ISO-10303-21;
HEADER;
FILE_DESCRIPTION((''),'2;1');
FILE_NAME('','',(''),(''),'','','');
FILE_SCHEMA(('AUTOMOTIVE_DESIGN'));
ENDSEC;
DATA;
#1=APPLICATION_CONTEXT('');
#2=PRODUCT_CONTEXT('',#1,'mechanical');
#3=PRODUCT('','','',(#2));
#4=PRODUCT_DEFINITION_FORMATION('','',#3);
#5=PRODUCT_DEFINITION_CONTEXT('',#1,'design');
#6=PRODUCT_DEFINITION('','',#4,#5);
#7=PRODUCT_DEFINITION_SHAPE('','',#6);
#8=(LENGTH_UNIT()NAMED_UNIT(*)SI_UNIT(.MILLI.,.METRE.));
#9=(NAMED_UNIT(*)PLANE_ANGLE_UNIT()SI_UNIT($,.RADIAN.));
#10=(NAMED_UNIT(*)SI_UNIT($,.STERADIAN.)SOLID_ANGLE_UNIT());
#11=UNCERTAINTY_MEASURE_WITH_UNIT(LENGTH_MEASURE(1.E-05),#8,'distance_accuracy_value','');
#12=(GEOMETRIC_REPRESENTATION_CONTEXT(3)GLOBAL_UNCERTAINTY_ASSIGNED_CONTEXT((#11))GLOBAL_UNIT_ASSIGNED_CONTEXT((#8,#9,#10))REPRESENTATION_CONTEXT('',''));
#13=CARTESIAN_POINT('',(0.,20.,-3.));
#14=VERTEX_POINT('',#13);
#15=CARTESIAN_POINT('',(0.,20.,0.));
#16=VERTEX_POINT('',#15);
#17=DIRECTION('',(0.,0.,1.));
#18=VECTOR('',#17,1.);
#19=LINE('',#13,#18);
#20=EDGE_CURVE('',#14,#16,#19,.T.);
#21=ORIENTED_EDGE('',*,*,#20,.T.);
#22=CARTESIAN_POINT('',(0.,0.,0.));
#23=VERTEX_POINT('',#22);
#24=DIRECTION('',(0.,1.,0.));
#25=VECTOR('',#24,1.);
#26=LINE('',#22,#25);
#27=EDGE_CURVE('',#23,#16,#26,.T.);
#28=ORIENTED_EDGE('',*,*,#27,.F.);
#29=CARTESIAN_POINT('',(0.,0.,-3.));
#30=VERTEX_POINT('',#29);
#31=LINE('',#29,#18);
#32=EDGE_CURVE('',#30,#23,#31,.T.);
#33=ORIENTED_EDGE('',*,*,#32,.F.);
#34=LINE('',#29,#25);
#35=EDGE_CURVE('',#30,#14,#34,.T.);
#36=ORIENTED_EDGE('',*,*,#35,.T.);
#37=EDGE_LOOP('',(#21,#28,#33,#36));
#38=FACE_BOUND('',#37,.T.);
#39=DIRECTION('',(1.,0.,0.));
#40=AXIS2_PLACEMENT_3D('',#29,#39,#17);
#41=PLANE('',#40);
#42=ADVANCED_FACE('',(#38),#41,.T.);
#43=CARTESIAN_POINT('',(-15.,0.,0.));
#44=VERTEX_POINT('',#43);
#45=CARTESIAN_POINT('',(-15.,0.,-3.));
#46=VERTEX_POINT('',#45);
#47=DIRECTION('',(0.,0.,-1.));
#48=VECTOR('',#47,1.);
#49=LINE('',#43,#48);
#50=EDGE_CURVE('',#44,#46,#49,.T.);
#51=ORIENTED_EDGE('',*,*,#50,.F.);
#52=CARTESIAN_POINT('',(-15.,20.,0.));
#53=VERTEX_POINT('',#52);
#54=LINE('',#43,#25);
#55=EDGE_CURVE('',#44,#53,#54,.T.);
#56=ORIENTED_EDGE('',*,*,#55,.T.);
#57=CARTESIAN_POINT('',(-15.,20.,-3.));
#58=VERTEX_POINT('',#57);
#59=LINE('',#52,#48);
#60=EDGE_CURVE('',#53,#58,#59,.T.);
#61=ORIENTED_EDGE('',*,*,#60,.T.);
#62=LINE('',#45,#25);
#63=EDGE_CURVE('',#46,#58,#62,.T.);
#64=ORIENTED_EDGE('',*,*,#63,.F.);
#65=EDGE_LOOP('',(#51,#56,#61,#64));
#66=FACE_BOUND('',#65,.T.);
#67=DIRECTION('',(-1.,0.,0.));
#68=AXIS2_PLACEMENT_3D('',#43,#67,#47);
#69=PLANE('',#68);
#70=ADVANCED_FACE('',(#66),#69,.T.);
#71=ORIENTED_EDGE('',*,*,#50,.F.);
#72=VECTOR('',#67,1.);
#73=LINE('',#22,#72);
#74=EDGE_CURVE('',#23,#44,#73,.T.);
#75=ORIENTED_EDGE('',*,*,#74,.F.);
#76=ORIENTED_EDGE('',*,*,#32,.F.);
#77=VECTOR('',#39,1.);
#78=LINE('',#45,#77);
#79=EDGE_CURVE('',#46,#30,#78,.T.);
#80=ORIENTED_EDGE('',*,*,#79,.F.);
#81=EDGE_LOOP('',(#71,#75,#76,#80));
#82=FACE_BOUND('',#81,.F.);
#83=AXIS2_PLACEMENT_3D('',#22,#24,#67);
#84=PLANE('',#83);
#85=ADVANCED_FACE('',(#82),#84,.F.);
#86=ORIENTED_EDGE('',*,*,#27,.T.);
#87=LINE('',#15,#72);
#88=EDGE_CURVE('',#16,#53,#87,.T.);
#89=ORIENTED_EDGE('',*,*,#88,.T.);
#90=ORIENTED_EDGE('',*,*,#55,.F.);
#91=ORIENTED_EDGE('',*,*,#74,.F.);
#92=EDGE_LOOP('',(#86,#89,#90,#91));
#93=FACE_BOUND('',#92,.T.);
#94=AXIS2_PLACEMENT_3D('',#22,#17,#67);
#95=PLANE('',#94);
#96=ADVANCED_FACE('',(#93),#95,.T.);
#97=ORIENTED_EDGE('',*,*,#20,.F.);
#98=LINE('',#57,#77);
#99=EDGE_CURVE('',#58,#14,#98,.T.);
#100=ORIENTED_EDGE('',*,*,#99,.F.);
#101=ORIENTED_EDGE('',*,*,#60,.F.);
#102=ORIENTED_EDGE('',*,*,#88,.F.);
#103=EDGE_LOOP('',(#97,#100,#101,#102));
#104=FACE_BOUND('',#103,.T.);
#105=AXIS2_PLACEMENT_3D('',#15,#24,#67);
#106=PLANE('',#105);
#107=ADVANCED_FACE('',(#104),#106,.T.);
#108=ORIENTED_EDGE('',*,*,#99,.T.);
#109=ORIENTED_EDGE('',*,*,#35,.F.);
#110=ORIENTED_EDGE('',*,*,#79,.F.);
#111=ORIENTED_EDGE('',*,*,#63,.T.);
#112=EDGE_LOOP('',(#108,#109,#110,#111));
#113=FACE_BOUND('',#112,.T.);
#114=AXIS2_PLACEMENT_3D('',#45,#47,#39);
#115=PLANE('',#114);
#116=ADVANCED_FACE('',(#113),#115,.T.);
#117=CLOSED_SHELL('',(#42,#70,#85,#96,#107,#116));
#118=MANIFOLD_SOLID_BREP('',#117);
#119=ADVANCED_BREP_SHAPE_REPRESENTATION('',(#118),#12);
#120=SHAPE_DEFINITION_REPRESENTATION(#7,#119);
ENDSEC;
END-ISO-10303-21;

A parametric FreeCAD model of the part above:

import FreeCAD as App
import Part
import Sketcher
from FreeCAD import Vector
Q = App.Units.Quantity

doc = App.newDocument("Part")
body = doc.addObject("PartDesign::Body", "Body")

# Sketch on XZ plane
sketch1 = body.newObject("Sketcher::SketchObject", "Sketch")
sketch1.AttachmentSupport = (doc.getObject("XZ_Plane"), [""])
sketch1.MapMode = "FlatFace"
sketch1.addGeometry(Part.LineSegment(Vector(-15, 0, 0), Vector(0, 0, 0)), False)
sketch1.addGeometry(Part.LineSegment(Vector(0, 0, 0), Vector(0, -3, 0)), False)
sketch1.addGeometry(Part.LineSegment(Vector(0, -3, 0), Vector(-15, -3, 0)), False)
sketch1.addGeometry(Part.LineSegment(Vector(-15, -3, 0), Vector(-15, 0, 0)), False)
sketch1.addConstraint(Sketcher.Constraint("Coincident", 0, 2, 1, 1))
sketch1.addConstraint(Sketcher.Constraint("Coincident", 1, 2, 2, 1))
sketch1.addConstraint(Sketcher.Constraint("Coincident", 2, 2, 3, 1))
sketch1.addConstraint(Sketcher.Constraint("Coincident", 3, 2, 0, 1))
sketch1.addConstraint(Sketcher.Constraint("Horizontal", 0))
sketch1.addConstraint(Sketcher.Constraint("Vertical", 1))
sketch1.addConstraint(Sketcher.Constraint("Horizontal", 2))
sketch1.addConstraint(Sketcher.Constraint("Vertical", 3))
sketch1.addConstraint(Sketcher.Constraint("Coincident", 0, 2, -1, 1))
sketch1.addConstraint(Sketcher.Constraint("DistanceX", 0, 1, 0, 2, Q("15 mm")))
sketch1.addConstraint(Sketcher.Constraint("DistanceY", 1, 2, 1, 1, Q("3 mm")))
pad1 = body.newObject("PartDesign::Pad", "Pad")
pad1.Profile = sketch1
pad1.Length = 20
pad1.Reversed = True

doc.recompute()
